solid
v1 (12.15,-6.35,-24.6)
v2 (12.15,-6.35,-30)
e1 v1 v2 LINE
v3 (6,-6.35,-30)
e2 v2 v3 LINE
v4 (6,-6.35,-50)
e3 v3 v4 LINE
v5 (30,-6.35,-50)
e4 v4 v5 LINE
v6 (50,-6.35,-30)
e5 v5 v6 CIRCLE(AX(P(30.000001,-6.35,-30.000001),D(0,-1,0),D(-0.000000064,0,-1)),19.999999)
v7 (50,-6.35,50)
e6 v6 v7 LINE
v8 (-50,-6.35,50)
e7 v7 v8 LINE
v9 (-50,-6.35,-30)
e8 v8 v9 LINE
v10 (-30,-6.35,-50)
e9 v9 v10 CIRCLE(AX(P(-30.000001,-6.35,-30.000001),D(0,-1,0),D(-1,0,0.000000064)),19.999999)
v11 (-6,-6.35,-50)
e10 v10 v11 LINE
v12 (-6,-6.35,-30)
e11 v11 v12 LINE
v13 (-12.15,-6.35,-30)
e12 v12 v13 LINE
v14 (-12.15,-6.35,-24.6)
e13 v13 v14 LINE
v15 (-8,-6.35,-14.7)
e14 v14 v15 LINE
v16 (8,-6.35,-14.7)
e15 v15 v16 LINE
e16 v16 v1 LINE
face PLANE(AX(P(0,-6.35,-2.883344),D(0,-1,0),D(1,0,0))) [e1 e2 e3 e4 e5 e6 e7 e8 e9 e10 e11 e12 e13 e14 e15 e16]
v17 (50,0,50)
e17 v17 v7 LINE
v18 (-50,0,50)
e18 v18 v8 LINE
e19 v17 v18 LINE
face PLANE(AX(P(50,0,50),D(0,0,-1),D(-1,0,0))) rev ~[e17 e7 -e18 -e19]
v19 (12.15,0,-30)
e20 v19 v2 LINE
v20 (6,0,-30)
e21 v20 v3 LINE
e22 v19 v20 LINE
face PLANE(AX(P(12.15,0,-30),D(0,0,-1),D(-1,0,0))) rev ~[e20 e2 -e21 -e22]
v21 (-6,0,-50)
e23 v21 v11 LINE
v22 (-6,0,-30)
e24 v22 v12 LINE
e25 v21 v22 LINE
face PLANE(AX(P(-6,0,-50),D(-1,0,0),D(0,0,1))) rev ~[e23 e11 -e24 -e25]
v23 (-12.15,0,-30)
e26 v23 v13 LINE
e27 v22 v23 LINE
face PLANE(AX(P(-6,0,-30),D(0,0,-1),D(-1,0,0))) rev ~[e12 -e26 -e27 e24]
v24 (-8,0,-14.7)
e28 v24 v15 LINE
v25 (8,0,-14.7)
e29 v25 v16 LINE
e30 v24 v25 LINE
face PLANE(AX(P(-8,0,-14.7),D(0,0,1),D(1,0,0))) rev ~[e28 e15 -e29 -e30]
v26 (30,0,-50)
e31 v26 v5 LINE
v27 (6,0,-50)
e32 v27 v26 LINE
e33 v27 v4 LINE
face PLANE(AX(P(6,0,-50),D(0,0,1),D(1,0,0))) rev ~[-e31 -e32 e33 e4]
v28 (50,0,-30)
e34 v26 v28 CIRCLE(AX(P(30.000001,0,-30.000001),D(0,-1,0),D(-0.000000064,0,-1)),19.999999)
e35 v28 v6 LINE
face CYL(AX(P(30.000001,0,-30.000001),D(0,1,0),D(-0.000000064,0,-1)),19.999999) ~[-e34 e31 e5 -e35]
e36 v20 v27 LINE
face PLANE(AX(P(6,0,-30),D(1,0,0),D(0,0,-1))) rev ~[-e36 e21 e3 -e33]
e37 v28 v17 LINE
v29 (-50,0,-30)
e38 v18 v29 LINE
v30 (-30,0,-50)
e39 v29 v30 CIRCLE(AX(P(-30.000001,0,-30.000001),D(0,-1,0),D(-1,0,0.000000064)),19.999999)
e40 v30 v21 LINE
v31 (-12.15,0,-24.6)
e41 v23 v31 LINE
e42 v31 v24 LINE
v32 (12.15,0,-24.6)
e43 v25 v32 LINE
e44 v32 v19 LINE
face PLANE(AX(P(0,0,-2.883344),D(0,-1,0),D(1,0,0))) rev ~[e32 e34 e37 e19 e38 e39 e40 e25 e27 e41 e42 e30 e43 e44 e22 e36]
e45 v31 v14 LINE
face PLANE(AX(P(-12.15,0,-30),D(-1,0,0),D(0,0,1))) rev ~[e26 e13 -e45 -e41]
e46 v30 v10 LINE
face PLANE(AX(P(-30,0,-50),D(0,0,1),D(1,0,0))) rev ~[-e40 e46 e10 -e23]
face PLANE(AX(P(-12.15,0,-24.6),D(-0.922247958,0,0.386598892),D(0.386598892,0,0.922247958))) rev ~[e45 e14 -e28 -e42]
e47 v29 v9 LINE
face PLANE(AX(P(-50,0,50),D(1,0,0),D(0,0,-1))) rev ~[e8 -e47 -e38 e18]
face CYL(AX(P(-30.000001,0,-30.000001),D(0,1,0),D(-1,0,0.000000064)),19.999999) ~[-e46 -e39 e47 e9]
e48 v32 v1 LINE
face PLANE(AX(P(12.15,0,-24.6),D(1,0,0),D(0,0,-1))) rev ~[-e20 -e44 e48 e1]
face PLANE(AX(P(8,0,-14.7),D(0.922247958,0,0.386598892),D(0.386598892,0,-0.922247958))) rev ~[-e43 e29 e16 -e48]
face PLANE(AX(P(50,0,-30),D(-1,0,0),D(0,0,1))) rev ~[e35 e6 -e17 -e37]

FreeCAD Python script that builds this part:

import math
import FreeCAD as App
import Part
import Sketcher

V = App.Vector
Q = App.Units.Quantity

doc = App.newDocument("Part")
body = doc.addObject("PartDesign::Body", "Body")

sketch1 = doc.addObject("Sketcher::SketchObject", "Sketch")
body.addObject(sketch1)
sketch1.AttachmentSupport = (doc.XZ_Plane, [""])
sketch1.MapMode = "FlatFace"
sketch1.addGeometry([
    Part.LineSegment(V(50, 50, 0), V(-50, 50, 0)),
    Part.LineSegment(V(-50, 50, 0), V(-50, -30, 0)),
    Part.ArcOfCircle(Part.Circle(V(-30, -30, 0), V(0, 0, 1), 20), math.radians(180), math.radians(270)),
    Part.LineSegment(V(-30, -50, 0), V(-6, -50, 0)),
    Part.LineSegment(V(-6, -50, 0), V(-6, -30, 0)),
    Part.LineSegment(V(-6, -30, 0), V(-12, -30, 0)),
    Part.LineSegment(V(-12, -30, 0), V(-12, -25, 0)),
    Part.LineSegment(V(-12, -25, 0), V(-8, -15, 0)),
    Part.LineSegment(V(-8, -15, 0), V(8, -15, 0)),
    Part.LineSegment(V(8, -15, 0), V(12, -25, 0)),
    Part.LineSegment(V(12, -25, 0), V(12, -30, 0)),
    Part.LineSegment(V(12, -30, 0), V(6, -30, 0)),
    Part.LineSegment(V(6, -30, 0), V(6, -50, 0)),
    Part.LineSegment(V(6, -50, 0), V(30, -50, 0)),
    Part.ArcOfCircle(Part.Circle(V(30, -30, 0), V(0, 0, 1), 20), math.radians(-90), math.radians(0)),
    Part.LineSegment(V(50, -30, 0), V(50, 50, 0)),
], False)
sketch1.addConstraint([
    Sketcher.Constraint("Coincident", 0, 2, 1, 1),
    Sketcher.Constraint("Tangent", 1, 2, 2, 1),
    Sketcher.Constraint("Tangent", 2, 2, 3, 1),
    Sketcher.Constraint("Coincident", 3, 2, 4, 1),
    Sketcher.Constraint("Coincident", 4, 2, 5, 1),
    Sketcher.Constraint("Coincident", 5, 2, 6, 1),
    Sketcher.Constraint("Coincident", 6, 2, 7, 1),
    Sketcher.Constraint("Coincident", 7, 2, 8, 1),
    Sketcher.Constraint("Coincident", 8, 2, 9, 1),
    Sketcher.Constraint("Coincident", 9, 2, 10, 1),
    Sketcher.Constraint("Coincident", 10, 2, 11, 1),
    Sketcher.Constraint("Coincident", 11, 2, 12, 1),
    Sketcher.Constraint("Coincident", 12, 2, 13, 1),
    Sketcher.Constraint("Tangent", 13, 2, 14, 1),
    Sketcher.Constraint("Tangent", 14, 2, 15, 1),
    Sketcher.Constraint("Coincident", 15, 2, 0, 1),
    Sketcher.Constraint("Horizontal", 0),
    Sketcher.Constraint("Vertical", 1),
    Sketcher.Constraint("Horizontal", 3),
    Sketcher.Constraint("Vertical", 4),
    Sketcher.Constraint("Horizontal", 5),
    Sketcher.Constraint("Vertical", 6),
    Sketcher.Constraint("Horizontal", 8),
    Sketcher.Constraint("Vertical", 10),
    Sketcher.Constraint("Horizontal", 11),
    Sketcher.Constraint("Vertical", 12),
    Sketcher.Constraint("Horizontal", 13),
    Sketcher.Constraint("Vertical", 15),
    Sketcher.Constraint("Equal", 2, 14),
    Sketcher.Constraint("Symmetric", 2, 3, 14, 3, -2),
    Sketcher.Constraint("Symmetric", 6, 2, 9, 2, -2),
    Sketcher.Constraint("Symmetric", 4, 2, 11, 2, -2),
    Sketcher.Constraint("Horizontal", 1, 2, 4, 2),
    Sketcher.Constraint("Equal", 7, 9),
    Sketcher.Constraint("Radius", 2, Q("19.999999 mm")),
    Sketcher.Constraint("DistanceX", 0, 2, 0, 1, Q("100 mm")),
    Sketcher.Constraint("DistanceX", 3, 1, 3, 2, Q("24 mm")),
    Sketcher.Constraint("DistanceX", 8, 1, 8, 2, Q("16 mm")),
    Sketcher.Constraint("DistanceY", 1, 2, 1, 1, Q("80 mm")),
    Sketcher.Constraint("DistanceY", 6, 1, 6, 2, Q("5.4 mm")),
    Sketcher.Constraint("DistanceY", 2, 3, -1, 1, Q("30.000001 mm")),
    Sketcher.Constraint("DistanceX", 5, 2, 5, 1, Q("6.15 mm")),
    Sketcher.Constraint("DistanceY", 7, 2, -1, 1, Q("14.7 mm")),
])
pad1 = doc.addObject("PartDesign::Pad", "Pad")
body.addObject(pad1)
pad1.Profile = sketch1
pad1.Length = 6.35

doc.recompute()
